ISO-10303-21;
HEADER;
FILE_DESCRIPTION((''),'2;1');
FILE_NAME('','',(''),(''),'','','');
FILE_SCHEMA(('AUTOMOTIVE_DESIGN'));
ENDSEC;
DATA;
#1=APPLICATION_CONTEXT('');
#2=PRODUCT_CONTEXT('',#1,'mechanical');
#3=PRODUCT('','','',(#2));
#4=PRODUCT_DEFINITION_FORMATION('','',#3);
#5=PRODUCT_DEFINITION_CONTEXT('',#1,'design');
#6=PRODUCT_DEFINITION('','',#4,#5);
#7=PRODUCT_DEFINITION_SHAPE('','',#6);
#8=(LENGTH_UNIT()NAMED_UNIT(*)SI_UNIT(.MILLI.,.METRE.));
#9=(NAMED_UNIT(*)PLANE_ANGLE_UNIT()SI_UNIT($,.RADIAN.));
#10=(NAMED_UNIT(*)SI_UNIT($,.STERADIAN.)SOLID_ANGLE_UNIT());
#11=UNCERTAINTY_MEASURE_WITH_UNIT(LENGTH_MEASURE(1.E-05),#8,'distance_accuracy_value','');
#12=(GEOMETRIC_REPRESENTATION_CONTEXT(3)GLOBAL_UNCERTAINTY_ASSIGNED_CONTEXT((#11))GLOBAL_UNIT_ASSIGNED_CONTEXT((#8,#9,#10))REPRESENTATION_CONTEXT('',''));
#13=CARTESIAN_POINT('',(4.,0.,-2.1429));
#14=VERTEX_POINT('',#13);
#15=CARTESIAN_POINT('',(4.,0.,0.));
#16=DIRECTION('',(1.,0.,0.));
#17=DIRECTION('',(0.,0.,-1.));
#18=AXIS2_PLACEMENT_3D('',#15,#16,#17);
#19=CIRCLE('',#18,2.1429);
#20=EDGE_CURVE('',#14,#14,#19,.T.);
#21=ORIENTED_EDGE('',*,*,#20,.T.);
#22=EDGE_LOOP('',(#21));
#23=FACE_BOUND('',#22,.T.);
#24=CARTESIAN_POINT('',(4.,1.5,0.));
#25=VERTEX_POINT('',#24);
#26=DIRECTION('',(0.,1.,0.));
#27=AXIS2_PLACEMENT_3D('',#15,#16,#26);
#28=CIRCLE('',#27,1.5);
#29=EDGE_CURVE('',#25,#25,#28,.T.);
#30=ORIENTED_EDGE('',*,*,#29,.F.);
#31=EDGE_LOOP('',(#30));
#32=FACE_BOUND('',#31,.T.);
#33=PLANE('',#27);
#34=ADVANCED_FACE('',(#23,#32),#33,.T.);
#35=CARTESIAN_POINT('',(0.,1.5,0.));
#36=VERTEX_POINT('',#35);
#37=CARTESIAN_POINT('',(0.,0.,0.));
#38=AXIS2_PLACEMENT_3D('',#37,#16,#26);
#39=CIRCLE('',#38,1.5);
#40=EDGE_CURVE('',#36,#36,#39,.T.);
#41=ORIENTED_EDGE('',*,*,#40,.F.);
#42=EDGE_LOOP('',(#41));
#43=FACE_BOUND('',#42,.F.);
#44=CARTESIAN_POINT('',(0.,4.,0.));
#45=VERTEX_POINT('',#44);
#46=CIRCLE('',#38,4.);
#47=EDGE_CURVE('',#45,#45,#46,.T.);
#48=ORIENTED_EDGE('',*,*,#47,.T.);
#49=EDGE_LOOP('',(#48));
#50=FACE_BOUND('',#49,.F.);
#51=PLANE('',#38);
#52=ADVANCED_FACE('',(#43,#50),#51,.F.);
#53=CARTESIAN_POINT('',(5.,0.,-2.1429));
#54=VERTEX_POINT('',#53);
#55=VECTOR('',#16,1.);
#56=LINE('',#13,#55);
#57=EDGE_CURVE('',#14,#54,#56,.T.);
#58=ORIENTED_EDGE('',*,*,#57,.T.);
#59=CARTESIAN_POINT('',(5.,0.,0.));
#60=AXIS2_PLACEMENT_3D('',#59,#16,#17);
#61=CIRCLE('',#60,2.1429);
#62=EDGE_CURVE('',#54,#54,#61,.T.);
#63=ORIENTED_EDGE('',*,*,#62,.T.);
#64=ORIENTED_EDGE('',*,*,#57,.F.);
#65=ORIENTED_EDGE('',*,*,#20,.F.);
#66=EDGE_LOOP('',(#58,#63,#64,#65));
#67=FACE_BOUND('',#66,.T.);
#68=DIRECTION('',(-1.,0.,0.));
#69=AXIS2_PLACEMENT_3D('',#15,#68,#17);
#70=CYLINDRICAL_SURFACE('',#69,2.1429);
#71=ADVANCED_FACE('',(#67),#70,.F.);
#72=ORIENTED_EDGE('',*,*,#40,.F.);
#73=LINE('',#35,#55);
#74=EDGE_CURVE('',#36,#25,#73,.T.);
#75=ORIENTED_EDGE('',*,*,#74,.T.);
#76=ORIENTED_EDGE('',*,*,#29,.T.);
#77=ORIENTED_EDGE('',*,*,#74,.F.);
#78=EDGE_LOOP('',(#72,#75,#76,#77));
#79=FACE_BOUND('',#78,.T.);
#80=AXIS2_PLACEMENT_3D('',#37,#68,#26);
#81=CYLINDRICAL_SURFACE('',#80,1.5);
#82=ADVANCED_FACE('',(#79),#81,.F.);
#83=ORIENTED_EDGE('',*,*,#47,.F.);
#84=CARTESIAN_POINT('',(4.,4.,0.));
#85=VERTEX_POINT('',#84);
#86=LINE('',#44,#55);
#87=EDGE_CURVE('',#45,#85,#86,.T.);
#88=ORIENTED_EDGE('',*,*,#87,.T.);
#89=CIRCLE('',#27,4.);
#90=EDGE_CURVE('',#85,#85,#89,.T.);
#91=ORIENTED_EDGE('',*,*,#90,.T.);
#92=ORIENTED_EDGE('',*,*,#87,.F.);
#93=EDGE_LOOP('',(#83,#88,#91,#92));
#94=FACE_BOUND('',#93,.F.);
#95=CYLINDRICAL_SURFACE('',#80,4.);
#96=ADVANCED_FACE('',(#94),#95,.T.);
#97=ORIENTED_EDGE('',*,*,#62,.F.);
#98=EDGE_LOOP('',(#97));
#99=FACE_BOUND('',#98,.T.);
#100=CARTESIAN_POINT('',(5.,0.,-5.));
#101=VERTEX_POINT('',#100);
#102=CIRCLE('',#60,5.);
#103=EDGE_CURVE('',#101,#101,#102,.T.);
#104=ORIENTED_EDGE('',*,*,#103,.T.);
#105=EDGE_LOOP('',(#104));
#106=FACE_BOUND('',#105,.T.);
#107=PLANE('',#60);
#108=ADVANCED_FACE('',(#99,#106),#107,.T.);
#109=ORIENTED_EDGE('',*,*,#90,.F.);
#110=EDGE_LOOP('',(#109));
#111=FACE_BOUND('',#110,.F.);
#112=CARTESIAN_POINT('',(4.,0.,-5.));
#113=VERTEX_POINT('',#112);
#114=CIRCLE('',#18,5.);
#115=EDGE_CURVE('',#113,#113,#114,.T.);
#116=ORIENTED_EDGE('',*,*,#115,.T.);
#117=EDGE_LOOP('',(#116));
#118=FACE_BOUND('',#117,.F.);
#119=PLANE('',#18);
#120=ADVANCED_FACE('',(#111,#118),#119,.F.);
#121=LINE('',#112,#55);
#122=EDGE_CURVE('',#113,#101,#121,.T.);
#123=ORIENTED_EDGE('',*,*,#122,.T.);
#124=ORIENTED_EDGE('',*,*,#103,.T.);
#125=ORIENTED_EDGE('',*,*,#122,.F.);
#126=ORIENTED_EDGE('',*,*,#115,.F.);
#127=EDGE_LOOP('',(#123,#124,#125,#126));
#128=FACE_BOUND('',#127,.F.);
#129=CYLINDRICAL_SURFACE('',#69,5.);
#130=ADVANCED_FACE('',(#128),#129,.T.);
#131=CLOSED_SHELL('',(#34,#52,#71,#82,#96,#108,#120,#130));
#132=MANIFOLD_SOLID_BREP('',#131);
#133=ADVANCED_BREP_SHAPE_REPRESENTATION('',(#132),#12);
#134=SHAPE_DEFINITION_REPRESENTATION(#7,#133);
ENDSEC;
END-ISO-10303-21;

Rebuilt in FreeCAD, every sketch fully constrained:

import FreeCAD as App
import Part
import Sketcher

doc = App.newDocument("Part")
params = doc.addObject("Spreadsheet::Sheet", "Params")
for row, (alias, value) in enumerate([
    ("sketch1_diameter", "8 mm"),
    ("sketch1_diameter2", "3 mm"),
    ("pad1_length", "4 mm"),
    ("sketch2_diameter", "10 mm"),
    ("pad2_length", "1 mm"),
], start=1):
    params.set(f"A{row}", alias)
    params.set(f"B{row}", "=" + value)
    params.setAlias(f"B{row}", alias)

body = doc.addObject("PartDesign::Body", "Body")

sketch1 = doc.addObject("Sketcher::SketchObject", "Sketch")
body.addObject(sketch1)
sketch1.AttachmentSupport = (doc.YZ_Plane, [""])
sketch1.MapMode = "FlatFace"
sketch1.addGeometry([
    Part.Circle(App.Vector(0, 0, 0), App.Vector(0, 0, 1), 4),
    Part.Circle(App.Vector(0, 0, 0), App.Vector(0, 0, 1), 1.5),
], False)
sketch1.addConstraint([
    Sketcher.Constraint("Coincident", 0, 3, -1, 1),
    Sketcher.Constraint("Coincident", 1, 3, -1, 1),
    Sketcher.Constraint("Diameter", 0, 8.0),
    Sketcher.Constraint("Diameter", 1, 3.0),
])
sketch1.setExpression("Constraints[2]", "Params.sketch1_diameter")
sketch1.setExpression("Constraints[3]", "Params.sketch1_diameter2")
pad1 = doc.addObject("PartDesign::Pad", "Pad")
body.addObject(pad1)
pad1.Profile = sketch1
pad1.setExpression("Length", "Params.pad1_length")

sketch2 = doc.addObject("Sketcher::SketchObject", "Sketch001")
body.addObject(sketch2)
sketch2.AttachmentSupport = (doc.YZ_Plane, [""])
sketch2.MapMode = "FlatFace"
sketch2.AttachmentOffset = App.Placement(App.Vector(0, 0, 4), App.Rotation())
sketch2.addGeometry([
    Part.Circle(App.Vector(0, 0, 0), App.Vector(0, 0, 1), 5),
    Part.Circle(App.Vector(0, 0, 0), App.Vector(0, 0, 1), 2.1),
], False)
sketch2.addConstraint([
    Sketcher.Constraint("Coincident", 0, 3, -1, 1),
    Sketcher.Constraint("Coincident", 1, 3, -1, 1),
    Sketcher.Constraint("Diameter", 0, 10.0),
    Sketcher.Constraint("Diameter", 1, 4.2858),
])
sketch2.setExpression("Constraints[2]", "Params.sketch2_diameter")
pad2 = doc.addObject("PartDesign::Pad", "Pad001")
body.addObject(pad2)
pad2.Profile = sketch2
pad2.setExpression("Length", "Params.pad2_length")

doc.recompute()
